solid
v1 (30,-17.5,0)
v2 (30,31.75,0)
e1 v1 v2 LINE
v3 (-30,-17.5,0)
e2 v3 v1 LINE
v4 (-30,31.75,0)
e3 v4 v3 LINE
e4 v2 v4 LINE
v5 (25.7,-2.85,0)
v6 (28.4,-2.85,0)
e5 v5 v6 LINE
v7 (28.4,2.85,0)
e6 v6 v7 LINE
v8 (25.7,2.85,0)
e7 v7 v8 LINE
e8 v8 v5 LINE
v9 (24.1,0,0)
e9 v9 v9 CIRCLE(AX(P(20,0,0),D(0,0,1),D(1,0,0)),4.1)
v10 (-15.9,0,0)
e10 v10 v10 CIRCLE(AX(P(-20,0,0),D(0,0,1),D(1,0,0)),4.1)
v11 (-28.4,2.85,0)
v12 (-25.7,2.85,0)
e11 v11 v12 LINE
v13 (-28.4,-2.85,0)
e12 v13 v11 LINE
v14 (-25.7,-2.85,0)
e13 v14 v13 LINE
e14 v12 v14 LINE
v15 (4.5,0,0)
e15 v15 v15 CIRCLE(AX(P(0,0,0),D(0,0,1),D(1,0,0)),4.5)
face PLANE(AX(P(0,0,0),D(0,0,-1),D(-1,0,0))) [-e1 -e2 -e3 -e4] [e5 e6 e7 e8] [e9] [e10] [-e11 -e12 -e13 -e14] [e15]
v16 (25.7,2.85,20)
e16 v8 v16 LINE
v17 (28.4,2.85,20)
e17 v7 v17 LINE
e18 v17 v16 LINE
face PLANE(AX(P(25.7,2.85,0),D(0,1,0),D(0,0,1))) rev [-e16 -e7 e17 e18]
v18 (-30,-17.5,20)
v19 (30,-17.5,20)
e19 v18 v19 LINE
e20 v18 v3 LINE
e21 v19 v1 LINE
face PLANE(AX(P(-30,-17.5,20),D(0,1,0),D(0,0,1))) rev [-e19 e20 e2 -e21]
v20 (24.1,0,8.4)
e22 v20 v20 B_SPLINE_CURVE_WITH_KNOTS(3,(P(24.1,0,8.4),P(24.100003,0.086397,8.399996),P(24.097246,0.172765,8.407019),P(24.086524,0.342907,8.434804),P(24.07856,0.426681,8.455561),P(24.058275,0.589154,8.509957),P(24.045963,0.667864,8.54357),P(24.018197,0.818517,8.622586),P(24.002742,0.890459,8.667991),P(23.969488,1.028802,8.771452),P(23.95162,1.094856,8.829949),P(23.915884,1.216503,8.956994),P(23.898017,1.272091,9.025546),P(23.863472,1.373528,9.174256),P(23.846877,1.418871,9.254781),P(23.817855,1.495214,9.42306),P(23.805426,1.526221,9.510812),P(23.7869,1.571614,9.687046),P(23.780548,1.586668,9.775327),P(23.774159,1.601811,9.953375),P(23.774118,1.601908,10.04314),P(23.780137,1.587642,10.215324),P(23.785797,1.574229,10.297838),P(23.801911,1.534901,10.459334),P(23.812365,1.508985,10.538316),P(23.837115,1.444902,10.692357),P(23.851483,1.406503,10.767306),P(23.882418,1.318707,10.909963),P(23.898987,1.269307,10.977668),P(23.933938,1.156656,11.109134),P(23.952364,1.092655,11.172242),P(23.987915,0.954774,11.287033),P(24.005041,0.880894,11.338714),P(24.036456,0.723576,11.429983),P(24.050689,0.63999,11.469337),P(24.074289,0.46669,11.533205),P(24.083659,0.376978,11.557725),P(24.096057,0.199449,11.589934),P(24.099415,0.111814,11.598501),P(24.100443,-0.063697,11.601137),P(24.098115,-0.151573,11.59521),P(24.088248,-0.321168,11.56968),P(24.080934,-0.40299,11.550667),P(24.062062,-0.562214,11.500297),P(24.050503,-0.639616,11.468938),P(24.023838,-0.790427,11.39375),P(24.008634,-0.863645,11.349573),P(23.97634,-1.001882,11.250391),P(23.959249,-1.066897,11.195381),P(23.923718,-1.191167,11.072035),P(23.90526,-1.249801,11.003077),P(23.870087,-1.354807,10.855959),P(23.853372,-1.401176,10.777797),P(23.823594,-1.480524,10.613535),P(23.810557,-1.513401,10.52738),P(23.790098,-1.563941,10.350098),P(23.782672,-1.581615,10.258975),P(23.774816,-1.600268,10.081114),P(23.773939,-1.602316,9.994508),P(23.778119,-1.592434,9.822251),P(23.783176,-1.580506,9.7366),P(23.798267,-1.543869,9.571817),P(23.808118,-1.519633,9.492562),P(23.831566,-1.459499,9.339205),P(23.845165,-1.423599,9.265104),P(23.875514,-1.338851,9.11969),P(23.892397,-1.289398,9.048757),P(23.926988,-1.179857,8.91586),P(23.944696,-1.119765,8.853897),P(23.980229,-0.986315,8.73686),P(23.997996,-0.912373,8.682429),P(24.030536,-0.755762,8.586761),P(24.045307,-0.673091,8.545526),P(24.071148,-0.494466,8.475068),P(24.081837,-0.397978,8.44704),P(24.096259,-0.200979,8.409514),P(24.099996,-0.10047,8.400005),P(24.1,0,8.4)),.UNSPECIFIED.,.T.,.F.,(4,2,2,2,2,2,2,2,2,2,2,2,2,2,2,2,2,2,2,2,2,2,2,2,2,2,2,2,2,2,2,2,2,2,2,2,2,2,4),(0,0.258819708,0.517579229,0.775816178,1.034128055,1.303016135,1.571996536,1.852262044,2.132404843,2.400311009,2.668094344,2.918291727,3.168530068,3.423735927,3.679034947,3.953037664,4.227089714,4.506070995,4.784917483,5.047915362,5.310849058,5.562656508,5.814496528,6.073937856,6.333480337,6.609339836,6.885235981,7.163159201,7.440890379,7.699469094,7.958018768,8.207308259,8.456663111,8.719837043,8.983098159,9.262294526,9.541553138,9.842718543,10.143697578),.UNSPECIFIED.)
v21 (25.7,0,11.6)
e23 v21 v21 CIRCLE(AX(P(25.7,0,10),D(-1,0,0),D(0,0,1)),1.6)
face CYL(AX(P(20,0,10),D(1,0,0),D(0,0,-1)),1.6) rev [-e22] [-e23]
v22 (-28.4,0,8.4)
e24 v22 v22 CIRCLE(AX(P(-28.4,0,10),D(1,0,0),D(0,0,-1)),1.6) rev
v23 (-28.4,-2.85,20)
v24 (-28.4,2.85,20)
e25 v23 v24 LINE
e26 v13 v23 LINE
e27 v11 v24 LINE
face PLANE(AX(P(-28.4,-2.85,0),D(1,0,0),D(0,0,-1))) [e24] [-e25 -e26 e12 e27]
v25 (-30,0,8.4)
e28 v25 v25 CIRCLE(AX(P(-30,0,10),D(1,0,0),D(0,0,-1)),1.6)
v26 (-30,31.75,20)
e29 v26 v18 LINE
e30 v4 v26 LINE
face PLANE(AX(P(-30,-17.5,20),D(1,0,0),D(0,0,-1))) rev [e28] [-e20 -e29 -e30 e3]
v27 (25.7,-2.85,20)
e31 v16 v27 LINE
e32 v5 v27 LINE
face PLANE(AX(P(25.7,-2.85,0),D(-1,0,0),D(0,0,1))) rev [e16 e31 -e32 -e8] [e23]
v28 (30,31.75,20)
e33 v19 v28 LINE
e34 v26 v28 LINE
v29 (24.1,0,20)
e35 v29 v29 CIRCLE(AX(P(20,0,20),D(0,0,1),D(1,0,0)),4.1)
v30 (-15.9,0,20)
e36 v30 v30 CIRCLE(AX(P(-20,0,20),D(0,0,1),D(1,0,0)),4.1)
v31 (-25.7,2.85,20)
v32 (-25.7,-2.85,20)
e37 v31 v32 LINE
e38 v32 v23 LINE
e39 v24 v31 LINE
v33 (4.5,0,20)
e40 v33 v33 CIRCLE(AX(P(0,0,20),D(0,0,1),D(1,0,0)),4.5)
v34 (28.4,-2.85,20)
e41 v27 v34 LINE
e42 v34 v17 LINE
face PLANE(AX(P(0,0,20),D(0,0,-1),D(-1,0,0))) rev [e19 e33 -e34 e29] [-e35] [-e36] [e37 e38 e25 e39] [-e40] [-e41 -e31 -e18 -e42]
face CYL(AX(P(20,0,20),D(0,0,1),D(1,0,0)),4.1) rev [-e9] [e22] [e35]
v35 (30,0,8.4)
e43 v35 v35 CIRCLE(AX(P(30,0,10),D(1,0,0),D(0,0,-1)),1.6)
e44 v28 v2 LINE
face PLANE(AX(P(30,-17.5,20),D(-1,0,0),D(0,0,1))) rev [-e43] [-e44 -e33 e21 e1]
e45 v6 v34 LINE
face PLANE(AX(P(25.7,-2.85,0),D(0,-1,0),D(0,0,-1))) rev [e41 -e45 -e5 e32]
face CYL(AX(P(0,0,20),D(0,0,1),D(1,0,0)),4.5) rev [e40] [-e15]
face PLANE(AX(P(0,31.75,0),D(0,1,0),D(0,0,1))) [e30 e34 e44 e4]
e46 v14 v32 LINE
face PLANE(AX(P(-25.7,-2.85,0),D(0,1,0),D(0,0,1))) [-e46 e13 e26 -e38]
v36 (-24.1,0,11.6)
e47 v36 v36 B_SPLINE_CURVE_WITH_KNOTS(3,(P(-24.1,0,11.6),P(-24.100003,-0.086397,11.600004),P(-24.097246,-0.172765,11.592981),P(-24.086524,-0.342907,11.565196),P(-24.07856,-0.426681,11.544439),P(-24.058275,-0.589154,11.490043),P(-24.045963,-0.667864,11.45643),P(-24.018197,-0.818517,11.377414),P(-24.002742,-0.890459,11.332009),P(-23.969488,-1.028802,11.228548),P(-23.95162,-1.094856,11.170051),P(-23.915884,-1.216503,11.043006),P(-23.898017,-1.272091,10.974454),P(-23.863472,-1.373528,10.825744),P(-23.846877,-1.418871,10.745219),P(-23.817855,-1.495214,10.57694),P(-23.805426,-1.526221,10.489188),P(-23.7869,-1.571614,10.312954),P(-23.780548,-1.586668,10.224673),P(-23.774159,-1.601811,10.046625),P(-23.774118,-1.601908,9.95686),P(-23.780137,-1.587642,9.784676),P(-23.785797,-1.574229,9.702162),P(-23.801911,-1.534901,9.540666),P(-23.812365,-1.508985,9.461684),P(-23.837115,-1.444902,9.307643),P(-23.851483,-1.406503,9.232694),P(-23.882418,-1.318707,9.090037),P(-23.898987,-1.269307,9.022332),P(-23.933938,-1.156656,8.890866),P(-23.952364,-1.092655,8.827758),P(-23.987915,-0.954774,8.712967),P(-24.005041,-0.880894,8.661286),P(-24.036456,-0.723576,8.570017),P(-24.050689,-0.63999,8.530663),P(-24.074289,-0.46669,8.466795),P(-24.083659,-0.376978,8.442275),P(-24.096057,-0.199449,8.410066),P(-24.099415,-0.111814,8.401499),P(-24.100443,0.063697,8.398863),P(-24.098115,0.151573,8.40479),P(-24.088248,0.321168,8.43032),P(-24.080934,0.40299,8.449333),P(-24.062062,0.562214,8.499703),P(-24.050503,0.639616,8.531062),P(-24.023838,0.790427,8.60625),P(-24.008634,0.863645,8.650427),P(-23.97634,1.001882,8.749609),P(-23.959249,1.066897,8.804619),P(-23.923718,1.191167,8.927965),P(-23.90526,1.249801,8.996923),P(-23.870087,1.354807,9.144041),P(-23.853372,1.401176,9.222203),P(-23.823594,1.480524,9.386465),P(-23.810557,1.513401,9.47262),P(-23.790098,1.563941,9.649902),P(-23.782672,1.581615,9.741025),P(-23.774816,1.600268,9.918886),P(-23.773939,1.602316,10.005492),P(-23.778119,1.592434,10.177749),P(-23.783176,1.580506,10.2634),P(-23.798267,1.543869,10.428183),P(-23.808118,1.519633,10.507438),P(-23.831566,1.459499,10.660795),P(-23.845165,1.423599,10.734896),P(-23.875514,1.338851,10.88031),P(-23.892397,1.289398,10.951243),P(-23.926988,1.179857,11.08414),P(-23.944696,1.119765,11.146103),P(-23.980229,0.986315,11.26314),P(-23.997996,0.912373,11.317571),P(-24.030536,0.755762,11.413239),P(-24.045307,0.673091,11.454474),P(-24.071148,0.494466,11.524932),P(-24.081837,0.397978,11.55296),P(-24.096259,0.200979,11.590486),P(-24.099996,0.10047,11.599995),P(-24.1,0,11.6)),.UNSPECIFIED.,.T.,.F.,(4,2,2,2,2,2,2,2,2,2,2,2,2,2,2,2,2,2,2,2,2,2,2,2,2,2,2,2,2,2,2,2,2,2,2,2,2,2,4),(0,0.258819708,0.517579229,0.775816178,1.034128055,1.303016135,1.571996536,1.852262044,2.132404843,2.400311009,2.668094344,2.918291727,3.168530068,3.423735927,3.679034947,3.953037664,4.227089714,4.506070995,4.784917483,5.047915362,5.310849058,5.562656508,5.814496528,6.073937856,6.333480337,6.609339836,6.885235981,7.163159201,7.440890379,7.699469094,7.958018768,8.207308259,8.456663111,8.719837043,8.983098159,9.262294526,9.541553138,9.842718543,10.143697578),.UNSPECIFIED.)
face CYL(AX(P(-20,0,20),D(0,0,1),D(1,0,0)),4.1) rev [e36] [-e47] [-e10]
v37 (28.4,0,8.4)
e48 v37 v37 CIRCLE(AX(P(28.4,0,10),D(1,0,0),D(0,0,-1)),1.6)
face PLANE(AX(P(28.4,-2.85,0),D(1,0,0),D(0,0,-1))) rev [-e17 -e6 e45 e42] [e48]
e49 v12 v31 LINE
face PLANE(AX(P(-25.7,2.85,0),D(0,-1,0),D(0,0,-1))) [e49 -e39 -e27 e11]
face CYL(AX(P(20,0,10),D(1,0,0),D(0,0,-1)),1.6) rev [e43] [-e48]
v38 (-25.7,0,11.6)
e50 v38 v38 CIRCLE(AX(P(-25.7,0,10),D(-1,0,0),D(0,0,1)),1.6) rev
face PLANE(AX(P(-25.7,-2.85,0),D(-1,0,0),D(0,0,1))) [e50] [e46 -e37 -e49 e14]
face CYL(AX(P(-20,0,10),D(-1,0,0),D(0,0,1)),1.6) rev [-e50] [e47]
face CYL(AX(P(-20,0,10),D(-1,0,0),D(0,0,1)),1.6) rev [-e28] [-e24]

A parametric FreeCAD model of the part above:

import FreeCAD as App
import Part
import Sketcher
from FreeCAD import Vector
Q = App.Units.Quantity


def add_polygon(sketch, points):
    """Adds a closed chain of lines whose ends are joined by coincident constraints."""
    first, n = sketch.GeometryCount, len(points)
    for a, b in zip(points, points[1:] + points[:1]):
        sketch.addGeometry(Part.LineSegment(App.Vector(*a, 0), App.Vector(*b, 0)), False)
    for i in range(n):
        sketch.addConstraint(Sketcher.Constraint("Coincident", first + i, 2, first + (i + 1) % n, 1))

doc = App.newDocument("Part")
body = doc.addObject("PartDesign::Body", "Body")

sketch1 = body.newObject("Sketcher::SketchObject", "Sketch")
sketch1.AttachmentSupport = (doc.getObject("XY_Plane"), [""])
sketch1.MapMode = "FlatFace"
add_polygon(sketch1, [(-30, 17.5), (-30, -17.5), (30, -17.5), (30, 17.5)])
sketch1.addConstraint([
    Sketcher.Constraint("Vertical", 0),
    Sketcher.Constraint("Horizontal", 1),
    Sketcher.Constraint("Vertical", 2),
    Sketcher.Constraint("Horizontal", 3),
    Sketcher.Constraint("Symmetric", 0, 2, 2, 2, -1, 1),
    Sketcher.Constraint("DistanceX", 1, 1, 1, 2, Q("60 mm")),
    Sketcher.Constraint("DistanceY", 0, 2, 0, 1, Q("35 mm")),
])
pad1 = body.newObject("PartDesign::Pad", "Pad")
pad1.Profile = sketch1
pad1.Length = 20

sketch2 = body.newObject("Sketcher::SketchObject", "Sketch001")
sketch2.AttachmentSupport = (doc.getObject("XY_Plane"), [""])
sketch2.MapMode = "FlatFace"
sketch2.AttachmentOffset = App.Placement(Vector(0, 0, 20), App.Rotation())
sketch2.addGeometry(Part.Circle(Vector(0, 0, 0), Vector(0, 0, 1), 4.5), False)
sketch2.addConstraint([
    Sketcher.Constraint("Coincident", 0, 3, -1, 1),
    Sketcher.Constraint("Diameter", 0, Q("9 mm")),
])
doc.recompute()
hole = body.newObject("PartDesign::Hole", "Hole")
hole.Profile = sketch2
hole.ThreadType = "None"
hole.Diameter = 9
hole.DepthType = "ThroughAll"

sketch3 = body.newObject("Sketcher::SketchObject", "Sketch002")
sketch3.AttachmentSupport = (doc.getObject("XY_Plane"), [""])
sketch3.MapMode = "FlatFace"
sketch3.AttachmentOffset = App.Placement(Vector(0, 0, 20), App.Rotation())
sketch3.addGeometry([
    Part.Circle(Vector(20, 0, 0), Vector(0, 0, 1), 4.1),
    Part.Circle(Vector(-20, 0, 0), Vector(0, 0, 1), 4.1),
], False)
sketch3.addConstraint([
    Sketcher.Constraint("Equal", 0, 1),
    Sketcher.Constraint("Symmetric", 0, 3, 1, 3, -1, 1),
    Sketcher.Constraint("PointOnObject", 0, 3, -1),
    Sketcher.Constraint("Diameter", 0, Q("8.2 mm")),
    Sketcher.Constraint("DistanceX", -1, 1, 0, 3, Q("20 mm")),
])
doc.recompute()
hole2 = body.newObject("PartDesign::Hole", "Hole001")
hole2.Profile = sketch3
hole2.ThreadType = "None"
hole2.Diameter = 8.2
hole2.DepthType = "ThroughAll"

sketch4 = body.newObject("Sketcher::SketchObject", "Sketch003")
sketch4.AttachmentSupport = (doc.getObject("XY_Plane"), [""])
sketch4.MapMode = "FlatFace"
sketch4.AttachmentOffset = App.Placement(Vector(0, 0, 20), App.Rotation())
add_polygon(sketch4, [(25.7, 2.85), (25.7, -2.85), (28.4, -2.85), (28.4, 2.85)])
sketch4.addConstraint([
    Sketcher.Constraint("Vertical", 0),
    Sketcher.Constraint("Horizontal", 1),
    Sketcher.Constraint("Vertical", 2),
    Sketcher.Constraint("Horizontal", 3),
    Sketcher.Constraint("DistanceX", 1, 1, 1, 2, Q("2.7 mm")),
    Sketcher.Constraint("DistanceY", 0, 2, 0, 1, Q("5.7 mm")),
    Sketcher.Constraint("DistanceX", -1, 1, 0, 2, Q("25.7 mm")),
    Sketcher.Constraint("DistanceY", 0, 2, -1, 1, Q("2.85 mm")),
])
pocket1 = body.newObject("PartDesign::Pocket", "Pocket")
pocket1.Profile = sketch4
pocket1.Type = "ThroughAll"

sketch5 = body.newObject("Sketcher::SketchObject", "Sketch004")
sketch5.AttachmentSupport = (doc.getObject("YZ_Plane"), [""])
sketch5.MapMode = "FlatFace"
sketch5.AttachmentOffset = App.Placement(Vector(0, 0, 30), App.Rotation())
sketch5.addGeometry(Part.Circle(Vector(0, 10, 0), Vector(0, 0, 1), 1.6), False)
sketch5.addConstraint([
    Sketcher.Constraint("PointOnObject", 0, 3, -2),
    Sketcher.Constraint("Diameter", 0, Q("3.2 mm")),
    Sketcher.Constraint("DistanceY", -1, 1, 0, 3, Q("10 mm")),
])
pocket2 = body.newObject("PartDesign::Pocket", "Pocket001")
pocket2.Profile = sketch5
pocket2.Length = 10
doc.recompute()

mirrored = body.newObject("PartDesign::Mirrored", "Mirrored")
mirrored.Originals = [pocket1, pocket2]
mirrored.MirrorPlane = (doc.getObject("YZ_Plane"), [""])
body.Tip = mirrored

sketch6 = body.newObject("Sketcher::SketchObject", "Sketch005")
sketch6.AttachmentSupport = (doc.getObject("XZ_Plane"), [""])
sketch6.MapMode = "FlatFace"
sketch6.AttachmentOffset = App.Placement(Vector(0, 0, -17.5), App.Rotation())
add_polygon(sketch6, [(-30, 0), (-30, 20), (30, 20), (30, 0)])
sketch6.addConstraint([
    Sketcher.Constraint("Vertical", 0),
    Sketcher.Constraint("Horizontal", 1),
    Sketcher.Constraint("Vertical", 2),
    Sketcher.Constraint("Horizontal", 3),
    Sketcher.Constraint("Symmetric", 2, 2, 3, 2, -1, 1),
    Sketcher.Constraint("DistanceX", 1, 1, 1, 2, Q("60 mm")),
    Sketcher.Constraint("DistanceY", 0, 1, 0, 2, Q("20 mm")),
])
pad2 = body.newObject("PartDesign::Pad", "Pad001")
pad2.Profile = sketch6
pad2.Length = 14.25
pad2.Reversed = True

doc.recompute()
